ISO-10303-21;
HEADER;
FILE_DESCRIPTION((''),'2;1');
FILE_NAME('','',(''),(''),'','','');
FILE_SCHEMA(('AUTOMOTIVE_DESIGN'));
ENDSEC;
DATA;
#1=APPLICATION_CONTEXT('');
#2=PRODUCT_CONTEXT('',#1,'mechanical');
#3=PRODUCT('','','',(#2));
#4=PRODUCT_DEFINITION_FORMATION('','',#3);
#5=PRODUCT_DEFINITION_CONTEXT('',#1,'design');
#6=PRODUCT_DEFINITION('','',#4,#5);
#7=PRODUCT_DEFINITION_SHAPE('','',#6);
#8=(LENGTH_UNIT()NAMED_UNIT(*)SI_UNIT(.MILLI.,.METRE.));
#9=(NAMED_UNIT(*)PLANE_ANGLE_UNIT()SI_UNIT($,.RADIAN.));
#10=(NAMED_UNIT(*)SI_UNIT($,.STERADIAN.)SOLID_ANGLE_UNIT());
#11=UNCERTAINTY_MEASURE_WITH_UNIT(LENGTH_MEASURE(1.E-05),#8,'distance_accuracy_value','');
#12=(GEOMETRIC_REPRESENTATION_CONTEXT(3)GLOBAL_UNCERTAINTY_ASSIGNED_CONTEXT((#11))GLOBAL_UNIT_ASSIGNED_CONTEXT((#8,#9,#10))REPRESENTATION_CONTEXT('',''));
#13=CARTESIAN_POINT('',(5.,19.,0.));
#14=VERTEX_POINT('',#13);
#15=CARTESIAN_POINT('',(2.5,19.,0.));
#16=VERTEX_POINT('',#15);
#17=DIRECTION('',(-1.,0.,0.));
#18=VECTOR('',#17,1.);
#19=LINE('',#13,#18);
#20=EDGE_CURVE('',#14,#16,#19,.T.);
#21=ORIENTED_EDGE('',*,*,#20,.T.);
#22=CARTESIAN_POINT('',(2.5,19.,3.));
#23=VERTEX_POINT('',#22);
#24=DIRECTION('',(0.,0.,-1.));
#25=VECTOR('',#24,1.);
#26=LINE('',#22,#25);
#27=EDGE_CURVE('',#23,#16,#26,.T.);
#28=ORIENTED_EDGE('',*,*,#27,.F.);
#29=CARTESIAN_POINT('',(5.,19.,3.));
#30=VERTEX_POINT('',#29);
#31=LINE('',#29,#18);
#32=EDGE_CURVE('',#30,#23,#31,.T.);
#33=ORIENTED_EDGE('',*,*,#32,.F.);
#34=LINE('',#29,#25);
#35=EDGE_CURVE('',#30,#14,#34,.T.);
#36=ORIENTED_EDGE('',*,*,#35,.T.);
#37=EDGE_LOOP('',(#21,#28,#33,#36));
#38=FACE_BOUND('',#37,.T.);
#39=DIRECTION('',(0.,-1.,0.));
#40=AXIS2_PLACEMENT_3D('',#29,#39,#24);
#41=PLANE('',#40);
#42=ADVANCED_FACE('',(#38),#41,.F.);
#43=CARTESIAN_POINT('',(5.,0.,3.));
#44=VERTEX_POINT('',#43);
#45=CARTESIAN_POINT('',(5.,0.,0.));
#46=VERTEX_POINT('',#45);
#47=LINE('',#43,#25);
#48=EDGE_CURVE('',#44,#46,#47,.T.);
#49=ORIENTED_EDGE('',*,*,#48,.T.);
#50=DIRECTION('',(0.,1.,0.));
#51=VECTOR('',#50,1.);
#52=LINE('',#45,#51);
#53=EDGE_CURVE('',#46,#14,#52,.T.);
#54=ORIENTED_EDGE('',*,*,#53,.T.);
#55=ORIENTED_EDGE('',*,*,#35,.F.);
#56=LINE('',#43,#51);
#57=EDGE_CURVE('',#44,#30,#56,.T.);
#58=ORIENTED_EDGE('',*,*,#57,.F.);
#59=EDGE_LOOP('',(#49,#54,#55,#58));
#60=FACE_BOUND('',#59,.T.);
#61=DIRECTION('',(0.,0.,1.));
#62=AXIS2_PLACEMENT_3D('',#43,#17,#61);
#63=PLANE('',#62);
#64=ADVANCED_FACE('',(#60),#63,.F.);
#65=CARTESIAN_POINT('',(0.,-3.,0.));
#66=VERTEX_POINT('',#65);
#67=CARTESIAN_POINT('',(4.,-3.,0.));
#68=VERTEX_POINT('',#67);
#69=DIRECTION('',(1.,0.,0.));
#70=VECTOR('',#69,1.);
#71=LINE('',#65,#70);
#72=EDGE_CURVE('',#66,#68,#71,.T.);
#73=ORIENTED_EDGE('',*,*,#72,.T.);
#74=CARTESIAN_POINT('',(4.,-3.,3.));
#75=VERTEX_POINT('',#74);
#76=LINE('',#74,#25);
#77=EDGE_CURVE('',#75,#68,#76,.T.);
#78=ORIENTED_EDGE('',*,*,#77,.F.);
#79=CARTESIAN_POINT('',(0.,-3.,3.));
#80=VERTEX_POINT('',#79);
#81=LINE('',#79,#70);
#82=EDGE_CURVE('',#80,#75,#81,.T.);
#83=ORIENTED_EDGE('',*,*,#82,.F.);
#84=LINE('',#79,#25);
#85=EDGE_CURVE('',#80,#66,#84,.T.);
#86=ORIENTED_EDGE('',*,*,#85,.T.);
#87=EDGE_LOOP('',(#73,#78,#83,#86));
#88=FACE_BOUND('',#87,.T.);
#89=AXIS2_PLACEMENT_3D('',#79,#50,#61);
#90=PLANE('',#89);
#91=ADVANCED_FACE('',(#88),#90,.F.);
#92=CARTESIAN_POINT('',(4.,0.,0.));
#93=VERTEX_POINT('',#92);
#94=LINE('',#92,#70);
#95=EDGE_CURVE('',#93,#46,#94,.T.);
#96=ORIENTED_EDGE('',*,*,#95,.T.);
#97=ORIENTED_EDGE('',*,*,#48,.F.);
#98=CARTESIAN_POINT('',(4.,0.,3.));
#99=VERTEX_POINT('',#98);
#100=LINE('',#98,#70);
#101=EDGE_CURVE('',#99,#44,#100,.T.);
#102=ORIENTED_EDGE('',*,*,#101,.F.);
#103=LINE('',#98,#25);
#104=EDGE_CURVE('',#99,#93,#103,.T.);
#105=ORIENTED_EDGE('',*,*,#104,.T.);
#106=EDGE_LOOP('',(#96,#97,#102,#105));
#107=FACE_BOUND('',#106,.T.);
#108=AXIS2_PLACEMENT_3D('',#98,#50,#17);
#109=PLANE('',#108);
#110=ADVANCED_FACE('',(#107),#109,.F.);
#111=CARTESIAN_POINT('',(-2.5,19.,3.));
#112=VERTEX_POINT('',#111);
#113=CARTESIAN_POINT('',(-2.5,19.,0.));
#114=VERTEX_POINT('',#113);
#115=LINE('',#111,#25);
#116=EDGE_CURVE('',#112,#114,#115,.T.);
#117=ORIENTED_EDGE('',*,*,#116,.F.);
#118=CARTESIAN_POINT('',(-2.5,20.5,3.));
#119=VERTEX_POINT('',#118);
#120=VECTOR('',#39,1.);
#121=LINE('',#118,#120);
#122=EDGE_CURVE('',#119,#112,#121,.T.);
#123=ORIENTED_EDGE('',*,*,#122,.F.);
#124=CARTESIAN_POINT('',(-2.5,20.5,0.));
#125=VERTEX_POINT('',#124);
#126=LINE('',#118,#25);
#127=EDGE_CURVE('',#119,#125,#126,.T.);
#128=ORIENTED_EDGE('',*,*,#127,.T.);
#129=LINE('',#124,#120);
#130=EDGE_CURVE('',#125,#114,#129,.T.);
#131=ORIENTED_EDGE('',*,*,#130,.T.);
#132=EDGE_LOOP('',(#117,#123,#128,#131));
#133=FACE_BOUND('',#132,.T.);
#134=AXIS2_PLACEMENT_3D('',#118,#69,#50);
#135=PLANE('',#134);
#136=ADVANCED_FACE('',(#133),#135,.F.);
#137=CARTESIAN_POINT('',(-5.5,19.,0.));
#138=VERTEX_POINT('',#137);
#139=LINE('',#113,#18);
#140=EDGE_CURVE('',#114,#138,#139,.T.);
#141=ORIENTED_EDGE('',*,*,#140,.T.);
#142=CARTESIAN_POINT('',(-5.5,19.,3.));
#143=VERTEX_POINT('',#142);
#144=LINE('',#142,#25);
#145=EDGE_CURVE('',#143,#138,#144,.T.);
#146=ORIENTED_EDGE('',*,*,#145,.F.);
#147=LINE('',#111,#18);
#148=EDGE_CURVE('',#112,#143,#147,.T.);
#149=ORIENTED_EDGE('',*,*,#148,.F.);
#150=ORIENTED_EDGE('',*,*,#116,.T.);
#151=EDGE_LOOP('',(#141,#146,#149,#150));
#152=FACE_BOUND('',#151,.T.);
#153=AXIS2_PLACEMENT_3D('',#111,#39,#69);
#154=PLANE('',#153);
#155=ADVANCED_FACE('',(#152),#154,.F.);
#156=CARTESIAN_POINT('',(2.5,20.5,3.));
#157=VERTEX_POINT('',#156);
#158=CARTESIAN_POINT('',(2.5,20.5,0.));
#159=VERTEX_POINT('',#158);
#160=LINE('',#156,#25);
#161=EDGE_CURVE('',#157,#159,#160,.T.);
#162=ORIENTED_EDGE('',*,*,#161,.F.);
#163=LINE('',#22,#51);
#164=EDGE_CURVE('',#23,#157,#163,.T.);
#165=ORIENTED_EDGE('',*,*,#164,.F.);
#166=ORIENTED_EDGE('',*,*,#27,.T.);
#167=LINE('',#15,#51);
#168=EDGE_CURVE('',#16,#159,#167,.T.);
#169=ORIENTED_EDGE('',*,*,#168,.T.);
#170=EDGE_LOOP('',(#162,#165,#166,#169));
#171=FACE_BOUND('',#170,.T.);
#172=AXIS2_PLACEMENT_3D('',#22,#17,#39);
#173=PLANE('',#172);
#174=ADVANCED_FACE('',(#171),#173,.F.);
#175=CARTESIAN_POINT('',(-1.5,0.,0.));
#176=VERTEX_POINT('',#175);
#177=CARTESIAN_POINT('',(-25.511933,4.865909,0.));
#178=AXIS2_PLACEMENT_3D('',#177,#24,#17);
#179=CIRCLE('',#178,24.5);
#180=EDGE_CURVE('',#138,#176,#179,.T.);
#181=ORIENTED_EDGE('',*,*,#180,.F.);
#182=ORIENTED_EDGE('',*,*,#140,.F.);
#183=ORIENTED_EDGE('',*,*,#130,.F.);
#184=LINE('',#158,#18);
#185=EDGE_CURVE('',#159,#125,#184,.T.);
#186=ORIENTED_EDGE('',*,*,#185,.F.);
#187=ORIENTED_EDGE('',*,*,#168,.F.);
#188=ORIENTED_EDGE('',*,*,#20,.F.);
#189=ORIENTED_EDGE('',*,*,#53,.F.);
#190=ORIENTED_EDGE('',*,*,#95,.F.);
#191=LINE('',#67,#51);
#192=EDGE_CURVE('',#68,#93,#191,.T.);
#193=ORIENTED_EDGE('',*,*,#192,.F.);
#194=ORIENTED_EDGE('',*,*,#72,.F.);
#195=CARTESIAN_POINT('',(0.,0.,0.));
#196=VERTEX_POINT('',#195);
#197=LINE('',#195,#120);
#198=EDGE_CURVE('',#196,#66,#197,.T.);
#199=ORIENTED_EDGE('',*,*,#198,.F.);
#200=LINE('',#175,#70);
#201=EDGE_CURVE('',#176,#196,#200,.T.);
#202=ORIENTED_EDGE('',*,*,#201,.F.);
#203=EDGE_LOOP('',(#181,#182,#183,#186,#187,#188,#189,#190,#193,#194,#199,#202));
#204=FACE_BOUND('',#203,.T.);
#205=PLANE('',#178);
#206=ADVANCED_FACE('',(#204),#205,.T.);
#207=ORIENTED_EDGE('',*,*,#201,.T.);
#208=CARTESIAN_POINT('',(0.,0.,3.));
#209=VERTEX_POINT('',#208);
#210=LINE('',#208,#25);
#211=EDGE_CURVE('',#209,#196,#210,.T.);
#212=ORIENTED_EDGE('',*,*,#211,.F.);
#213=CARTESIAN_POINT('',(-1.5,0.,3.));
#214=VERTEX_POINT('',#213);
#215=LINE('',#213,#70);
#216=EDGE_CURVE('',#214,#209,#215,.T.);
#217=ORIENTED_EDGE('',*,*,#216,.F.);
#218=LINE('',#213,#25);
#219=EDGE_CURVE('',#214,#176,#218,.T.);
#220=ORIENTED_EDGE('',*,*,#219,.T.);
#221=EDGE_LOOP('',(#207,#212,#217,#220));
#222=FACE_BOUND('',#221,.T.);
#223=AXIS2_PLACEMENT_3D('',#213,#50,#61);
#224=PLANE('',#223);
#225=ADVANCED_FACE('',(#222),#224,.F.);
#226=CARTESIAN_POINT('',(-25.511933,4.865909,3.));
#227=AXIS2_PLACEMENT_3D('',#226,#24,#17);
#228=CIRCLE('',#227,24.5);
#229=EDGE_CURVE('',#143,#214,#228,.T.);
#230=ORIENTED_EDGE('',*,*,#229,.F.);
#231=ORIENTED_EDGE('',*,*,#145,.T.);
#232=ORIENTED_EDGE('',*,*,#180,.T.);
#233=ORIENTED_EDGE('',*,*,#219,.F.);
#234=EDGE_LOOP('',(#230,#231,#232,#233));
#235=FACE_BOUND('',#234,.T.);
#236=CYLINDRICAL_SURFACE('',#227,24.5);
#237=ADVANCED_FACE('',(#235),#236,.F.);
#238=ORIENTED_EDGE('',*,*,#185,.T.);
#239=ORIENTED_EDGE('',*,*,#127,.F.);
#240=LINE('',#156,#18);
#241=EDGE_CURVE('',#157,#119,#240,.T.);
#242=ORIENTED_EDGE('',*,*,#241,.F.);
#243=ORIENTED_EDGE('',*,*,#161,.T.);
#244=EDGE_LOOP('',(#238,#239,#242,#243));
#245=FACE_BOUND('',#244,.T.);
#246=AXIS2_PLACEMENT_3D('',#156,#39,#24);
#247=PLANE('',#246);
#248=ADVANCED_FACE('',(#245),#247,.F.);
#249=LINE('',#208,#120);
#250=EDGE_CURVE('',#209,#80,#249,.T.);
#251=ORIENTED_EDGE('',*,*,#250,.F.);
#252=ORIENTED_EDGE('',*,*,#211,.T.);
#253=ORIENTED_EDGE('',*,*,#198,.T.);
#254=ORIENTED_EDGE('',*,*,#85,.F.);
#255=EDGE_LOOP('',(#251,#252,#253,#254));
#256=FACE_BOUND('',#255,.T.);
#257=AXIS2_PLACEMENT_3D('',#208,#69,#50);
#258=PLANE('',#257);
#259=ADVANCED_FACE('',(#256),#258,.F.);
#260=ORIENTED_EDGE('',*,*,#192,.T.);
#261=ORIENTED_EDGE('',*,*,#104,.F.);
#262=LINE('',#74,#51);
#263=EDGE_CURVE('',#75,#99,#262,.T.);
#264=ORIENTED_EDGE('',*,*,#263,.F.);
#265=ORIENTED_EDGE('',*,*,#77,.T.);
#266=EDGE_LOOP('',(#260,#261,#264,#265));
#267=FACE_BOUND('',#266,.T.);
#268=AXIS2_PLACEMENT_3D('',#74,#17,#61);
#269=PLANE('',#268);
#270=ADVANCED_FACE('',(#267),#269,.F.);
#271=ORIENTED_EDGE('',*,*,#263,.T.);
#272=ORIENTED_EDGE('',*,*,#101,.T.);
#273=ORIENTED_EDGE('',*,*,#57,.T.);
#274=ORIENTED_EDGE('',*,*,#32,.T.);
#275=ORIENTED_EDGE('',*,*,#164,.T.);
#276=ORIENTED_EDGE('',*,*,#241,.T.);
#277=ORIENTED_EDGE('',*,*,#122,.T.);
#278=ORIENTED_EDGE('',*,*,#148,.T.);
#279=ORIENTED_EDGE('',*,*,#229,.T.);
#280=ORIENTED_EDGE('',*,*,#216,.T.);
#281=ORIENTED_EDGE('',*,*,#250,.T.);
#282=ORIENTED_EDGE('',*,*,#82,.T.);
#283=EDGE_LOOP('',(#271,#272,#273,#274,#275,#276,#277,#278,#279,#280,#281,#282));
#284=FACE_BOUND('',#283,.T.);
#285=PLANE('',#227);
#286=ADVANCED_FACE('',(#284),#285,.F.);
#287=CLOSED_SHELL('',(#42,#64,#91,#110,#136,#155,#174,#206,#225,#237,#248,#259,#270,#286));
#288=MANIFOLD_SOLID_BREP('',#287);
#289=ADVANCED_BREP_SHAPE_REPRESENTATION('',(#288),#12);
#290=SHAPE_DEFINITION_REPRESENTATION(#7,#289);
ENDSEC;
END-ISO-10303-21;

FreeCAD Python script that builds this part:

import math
import FreeCAD as App
import Part
import Sketcher
from FreeCAD import Vector

doc = App.newDocument("Part")
body = doc.addObject("PartDesign::Body", "Body")

sketch1 = doc.addObject("Sketcher::SketchObject", "Sketch")
body.addObject(sketch1)
sketch1.AttachmentSupport = (doc.XY_Plane, [""])
sketch1.MapMode = "FlatFace"
sketch1.addGeometry(Part.LineSegment(Vector(-1.5, 0, 0), Vector(0, 0, 0)), False)
sketch1.addGeometry(Part.LineSegment(Vector(0, 0, 0), Vector(0, -3, 0)), False)
sketch1.addGeometry(Part.LineSegment(Vector(0, -3, 0), Vector(4, -3, 0)), False)
sketch1.addGeometry(Part.LineSegment(Vector(4, -3, 0), Vector(4, 0, 0)), False)
sketch1.addGeometry(Part.LineSegment(Vector(4, 0, 0), Vector(5, 0, 0)), False)
sketch1.addGeometry(Part.LineSegment(Vector(5, 0, 0), Vector(5, 19, 0)), False)
sketch1.addGeometry(Part.LineSegment(Vector(5, 19, 0), Vector(2.5, 19, 0)), False)
sketch1.addGeometry(Part.LineSegment(Vector(2.5, 19, 0), Vector(2.5, 20.5, 0)), False)
sketch1.addGeometry(Part.LineSegment(Vector(2.5, 20.5, 0), Vector(-2.5, 20.5, 0)), False)
sketch1.addGeometry(Part.LineSegment(Vector(-2.5, 20.5, 0), Vector(-2.5, 19, 0)), False)
sketch1.addGeometry(Part.LineSegment(Vector(-2.5, 19, 0), Vector(-5.5, 19, 0)), False)
sketch1.addGeometry(Part.ArcOfCircle(Part.Circle(Vector(-25.5, 4.9, 0), Vector(0, 0, 1), 24.5), math.radians(-11), math.radians(35)), False)
sketch1.addConstraint(Sketcher.Constraint("Coincident", 0, 2, 1, 1))
sketch1.addConstraint(Sketcher.Constraint("Coincident", 1, 2, 2, 1))
sketch1.addConstraint(Sketcher.Constraint("Coincident", 2, 2, 3, 1))
sketch1.addConstraint(Sketcher.Constraint("Coincident", 3, 2, 4, 1))
sketch1.addConstraint(Sketcher.Constraint("Coincident", 4, 2, 5, 1))
sketch1.addConstraint(Sketcher.Constraint("Coincident", 5, 2, 6, 1))
sketch1.addConstraint(Sketcher.Constraint("Coincident", 6, 2, 7, 1))
sketch1.addConstraint(Sketcher.Constraint("Coincident", 7, 2, 8, 1))
sketch1.addConstraint(Sketcher.Constraint("Coincident", 8, 2, 9, 1))
sketch1.addConstraint(Sketcher.Constraint("Coincident", 9, 2, 10, 1))
sketch1.addConstraint(Sketcher.Constraint("Coincident", 10, 2, 11, 2))
sketch1.addConstraint(Sketcher.Constraint("Coincident", 11, 1, 0, 1))
sketch1.addConstraint(Sketcher.Constraint("Horizontal", 0))
sketch1.addConstraint(Sketcher.Constraint("Vertical", 1))
sketch1.addConstraint(Sketcher.Constraint("Horizontal", 2))
sketch1.addConstraint(Sketcher.Constraint("Vertical", 3))
sketch1.addConstraint(Sketcher.Constraint("Horizontal", 4))
sketch1.addConstraint(Sketcher.Constraint("Vertical", 5))
sketch1.addConstraint(Sketcher.Constraint("Horizontal", 6))
sketch1.addConstraint(Sketcher.Constraint("Vertical", 7))
sketch1.addConstraint(Sketcher.Constraint("Horizontal", 8))
sketch1.addConstraint(Sketcher.Constraint("Vertical", 9))
sketch1.addConstraint(Sketcher.Constraint("Horizontal", 10))
sketch1.addConstraint(Sketcher.Constraint("Coincident", 0, 2, -1, 1))
sketch1.addConstraint(Sketcher.Constraint("Symmetric", 6, 2, 9, 2, -2))
sketch1.addConstraint(Sketcher.Constraint("PointOnObject", 3, 2, -1))
sketch1.addConstraint(Sketcher.Constraint("Equal", 10, 1))
sketch1.addConstraint(Sketcher.Constraint("Equal", 0, 7))
sketch1.addConstraint(Sketcher.Constraint("Radius", 11, 24.5))
sketch1.addConstraint(Sketcher.Constraint("DistanceX", 2, 1, 2, 2, 4.0))
sketch1.addConstraint(Sketcher.Constraint("DistanceX", 4, 1, 4, 2, 1.0))
sketch1.addConstraint(Sketcher.Constraint("DistanceX", 8, 2, 8, 1, 5.0))
sketch1.addConstraint(Sketcher.Constraint("DistanceX", 10, 2, 10, 1, 3.0))
sketch1.addConstraint(Sketcher.Constraint("DistanceY", 5, 1, 5, 2, 19.0))
sketch1.addConstraint(Sketcher.Constraint("DistanceX", 0, 1, 0, 2, 1.5))
pad1 = doc.addObject("PartDesign::Pad", "Pad")
body.addObject(pad1)
pad1.Profile = sketch1
pad1.Length = 3

doc.recompute()
